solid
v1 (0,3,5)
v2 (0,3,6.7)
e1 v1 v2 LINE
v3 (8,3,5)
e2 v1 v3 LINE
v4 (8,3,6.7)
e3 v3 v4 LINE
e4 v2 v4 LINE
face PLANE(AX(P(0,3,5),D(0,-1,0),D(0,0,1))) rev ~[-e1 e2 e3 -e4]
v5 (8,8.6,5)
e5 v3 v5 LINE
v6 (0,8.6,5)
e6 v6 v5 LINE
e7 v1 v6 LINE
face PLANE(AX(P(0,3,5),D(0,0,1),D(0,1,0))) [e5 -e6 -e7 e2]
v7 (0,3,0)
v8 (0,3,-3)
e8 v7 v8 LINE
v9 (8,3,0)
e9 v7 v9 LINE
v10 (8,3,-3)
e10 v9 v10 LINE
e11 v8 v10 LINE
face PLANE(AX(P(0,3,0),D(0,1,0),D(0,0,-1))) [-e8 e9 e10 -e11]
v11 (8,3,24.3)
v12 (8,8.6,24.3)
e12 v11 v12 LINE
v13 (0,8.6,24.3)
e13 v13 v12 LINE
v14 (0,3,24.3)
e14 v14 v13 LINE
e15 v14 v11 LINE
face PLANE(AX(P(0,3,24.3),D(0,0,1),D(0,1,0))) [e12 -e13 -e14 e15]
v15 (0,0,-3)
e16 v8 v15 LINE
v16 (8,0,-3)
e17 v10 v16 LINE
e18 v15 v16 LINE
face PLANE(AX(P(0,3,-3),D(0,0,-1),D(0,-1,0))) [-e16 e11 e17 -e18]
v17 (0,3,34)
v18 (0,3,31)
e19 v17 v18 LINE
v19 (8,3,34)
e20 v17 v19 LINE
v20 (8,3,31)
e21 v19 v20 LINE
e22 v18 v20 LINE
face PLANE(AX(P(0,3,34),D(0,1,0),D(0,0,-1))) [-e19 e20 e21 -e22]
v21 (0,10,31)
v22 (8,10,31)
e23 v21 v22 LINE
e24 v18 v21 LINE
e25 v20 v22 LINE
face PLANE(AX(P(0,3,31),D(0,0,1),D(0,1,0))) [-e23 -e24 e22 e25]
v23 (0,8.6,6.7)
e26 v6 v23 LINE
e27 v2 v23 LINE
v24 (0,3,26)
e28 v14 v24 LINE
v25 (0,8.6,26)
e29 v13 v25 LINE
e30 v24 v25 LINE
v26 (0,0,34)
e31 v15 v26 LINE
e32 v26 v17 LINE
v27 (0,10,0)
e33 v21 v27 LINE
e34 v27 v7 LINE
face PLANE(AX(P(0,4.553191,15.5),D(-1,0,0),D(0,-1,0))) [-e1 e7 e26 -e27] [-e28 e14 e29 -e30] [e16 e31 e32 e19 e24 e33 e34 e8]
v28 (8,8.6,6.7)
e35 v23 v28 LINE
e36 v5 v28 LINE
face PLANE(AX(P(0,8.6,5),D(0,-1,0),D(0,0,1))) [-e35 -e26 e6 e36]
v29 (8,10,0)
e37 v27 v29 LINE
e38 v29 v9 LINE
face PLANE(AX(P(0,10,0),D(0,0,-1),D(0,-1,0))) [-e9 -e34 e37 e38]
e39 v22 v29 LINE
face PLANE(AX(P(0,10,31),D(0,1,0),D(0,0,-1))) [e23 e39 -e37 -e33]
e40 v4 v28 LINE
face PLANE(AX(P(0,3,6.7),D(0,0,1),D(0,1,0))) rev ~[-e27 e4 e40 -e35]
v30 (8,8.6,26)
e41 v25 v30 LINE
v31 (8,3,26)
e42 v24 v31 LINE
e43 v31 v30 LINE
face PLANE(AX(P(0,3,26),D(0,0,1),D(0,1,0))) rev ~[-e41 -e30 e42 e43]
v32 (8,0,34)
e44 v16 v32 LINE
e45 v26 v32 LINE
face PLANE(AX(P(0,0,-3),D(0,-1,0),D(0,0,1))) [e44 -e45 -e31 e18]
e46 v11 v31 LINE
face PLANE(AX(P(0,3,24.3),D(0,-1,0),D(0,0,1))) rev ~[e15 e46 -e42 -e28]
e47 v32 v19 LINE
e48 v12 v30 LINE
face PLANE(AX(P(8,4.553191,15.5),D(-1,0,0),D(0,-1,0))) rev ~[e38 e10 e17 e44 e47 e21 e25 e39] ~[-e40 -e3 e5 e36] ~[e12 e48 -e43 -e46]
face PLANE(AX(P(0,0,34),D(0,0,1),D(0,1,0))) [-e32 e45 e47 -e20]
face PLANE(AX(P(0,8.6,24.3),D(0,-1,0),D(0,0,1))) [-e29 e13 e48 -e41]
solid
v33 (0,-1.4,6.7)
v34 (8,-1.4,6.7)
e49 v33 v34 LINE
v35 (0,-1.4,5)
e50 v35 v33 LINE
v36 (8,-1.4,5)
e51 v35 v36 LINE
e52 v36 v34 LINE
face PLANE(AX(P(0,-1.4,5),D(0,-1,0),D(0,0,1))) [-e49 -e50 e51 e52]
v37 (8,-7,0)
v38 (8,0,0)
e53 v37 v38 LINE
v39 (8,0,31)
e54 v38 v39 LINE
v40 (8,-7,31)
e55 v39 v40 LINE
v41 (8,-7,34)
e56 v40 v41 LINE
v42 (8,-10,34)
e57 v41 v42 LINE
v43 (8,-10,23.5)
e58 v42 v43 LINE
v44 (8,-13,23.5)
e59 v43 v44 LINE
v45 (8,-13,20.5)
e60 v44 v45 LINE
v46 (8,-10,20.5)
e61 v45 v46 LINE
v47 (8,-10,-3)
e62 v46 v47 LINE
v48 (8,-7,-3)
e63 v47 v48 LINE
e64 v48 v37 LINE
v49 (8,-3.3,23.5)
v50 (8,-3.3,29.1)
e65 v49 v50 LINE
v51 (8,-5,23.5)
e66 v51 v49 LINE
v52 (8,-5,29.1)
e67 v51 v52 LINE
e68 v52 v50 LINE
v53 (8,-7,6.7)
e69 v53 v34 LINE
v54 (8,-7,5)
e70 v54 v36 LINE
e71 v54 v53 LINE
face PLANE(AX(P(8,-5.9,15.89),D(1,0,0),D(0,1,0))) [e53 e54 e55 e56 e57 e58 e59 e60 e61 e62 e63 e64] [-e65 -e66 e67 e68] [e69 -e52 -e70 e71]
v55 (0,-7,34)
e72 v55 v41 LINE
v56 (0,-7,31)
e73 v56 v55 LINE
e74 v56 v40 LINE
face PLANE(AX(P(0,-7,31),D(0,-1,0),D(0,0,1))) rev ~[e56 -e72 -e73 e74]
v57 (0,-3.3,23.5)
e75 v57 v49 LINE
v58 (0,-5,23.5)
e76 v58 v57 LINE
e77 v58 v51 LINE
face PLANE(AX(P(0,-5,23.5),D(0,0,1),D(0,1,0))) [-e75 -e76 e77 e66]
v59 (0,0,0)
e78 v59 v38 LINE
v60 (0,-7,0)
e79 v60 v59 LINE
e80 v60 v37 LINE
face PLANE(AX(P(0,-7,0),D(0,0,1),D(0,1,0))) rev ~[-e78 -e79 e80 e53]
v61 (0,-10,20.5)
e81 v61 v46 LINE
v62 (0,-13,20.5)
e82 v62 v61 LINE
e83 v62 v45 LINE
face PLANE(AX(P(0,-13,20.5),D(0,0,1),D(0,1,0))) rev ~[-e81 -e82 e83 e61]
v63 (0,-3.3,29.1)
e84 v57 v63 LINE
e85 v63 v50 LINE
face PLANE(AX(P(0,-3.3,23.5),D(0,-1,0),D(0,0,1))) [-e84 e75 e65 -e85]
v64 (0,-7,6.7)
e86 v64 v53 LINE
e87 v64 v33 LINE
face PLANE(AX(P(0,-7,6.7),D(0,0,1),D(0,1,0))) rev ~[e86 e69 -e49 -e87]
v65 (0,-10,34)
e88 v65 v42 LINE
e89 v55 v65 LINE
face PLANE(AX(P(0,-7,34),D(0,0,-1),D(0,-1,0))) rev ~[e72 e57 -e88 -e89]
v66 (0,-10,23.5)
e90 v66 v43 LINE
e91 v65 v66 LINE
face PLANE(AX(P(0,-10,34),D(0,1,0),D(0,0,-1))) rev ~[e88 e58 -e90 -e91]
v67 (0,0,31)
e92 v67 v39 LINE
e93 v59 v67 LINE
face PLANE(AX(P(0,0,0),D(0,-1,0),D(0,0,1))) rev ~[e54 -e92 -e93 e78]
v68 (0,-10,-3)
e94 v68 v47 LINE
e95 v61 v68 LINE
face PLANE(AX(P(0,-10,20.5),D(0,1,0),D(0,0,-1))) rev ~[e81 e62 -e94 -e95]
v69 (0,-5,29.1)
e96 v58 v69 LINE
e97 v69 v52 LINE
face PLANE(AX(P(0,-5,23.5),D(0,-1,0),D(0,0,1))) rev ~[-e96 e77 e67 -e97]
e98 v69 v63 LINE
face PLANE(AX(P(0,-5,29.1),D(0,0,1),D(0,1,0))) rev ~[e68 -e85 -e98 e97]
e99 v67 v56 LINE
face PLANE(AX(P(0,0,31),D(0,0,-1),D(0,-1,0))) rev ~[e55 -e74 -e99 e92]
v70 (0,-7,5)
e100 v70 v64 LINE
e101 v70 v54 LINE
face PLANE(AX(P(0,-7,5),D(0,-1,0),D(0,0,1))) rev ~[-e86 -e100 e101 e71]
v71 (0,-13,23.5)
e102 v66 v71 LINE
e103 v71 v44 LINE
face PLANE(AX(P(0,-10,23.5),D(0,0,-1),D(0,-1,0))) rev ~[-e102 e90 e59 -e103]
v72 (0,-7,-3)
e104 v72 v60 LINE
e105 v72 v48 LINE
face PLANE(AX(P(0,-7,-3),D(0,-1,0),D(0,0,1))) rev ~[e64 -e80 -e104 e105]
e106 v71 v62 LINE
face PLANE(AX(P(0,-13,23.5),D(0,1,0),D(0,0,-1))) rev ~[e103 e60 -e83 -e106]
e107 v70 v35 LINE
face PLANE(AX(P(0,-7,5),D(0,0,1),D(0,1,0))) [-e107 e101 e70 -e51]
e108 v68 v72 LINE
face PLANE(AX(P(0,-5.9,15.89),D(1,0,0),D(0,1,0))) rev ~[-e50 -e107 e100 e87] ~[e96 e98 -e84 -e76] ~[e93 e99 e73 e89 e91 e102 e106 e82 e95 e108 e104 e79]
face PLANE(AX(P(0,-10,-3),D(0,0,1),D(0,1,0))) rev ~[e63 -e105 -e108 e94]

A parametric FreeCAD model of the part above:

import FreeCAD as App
import Part
import Sketcher

V = App.Vector


def add_polygon(sketch, points):
    """Adds a closed chain of lines whose ends are joined by coincident constraints."""
    first, n = sketch.GeometryCount, len(points)
    for a, b in zip(points, points[1:] + points[:1]):
        sketch.addGeometry(Part.LineSegment(App.Vector(*a, 0), App.Vector(*b, 0)), False)
    for i in range(n):
        sketch.addConstraint(Sketcher.Constraint("Coincident", first + i, 2, first + (i + 1) % n, 1))

doc = App.newDocument("Part")
body = doc.addObject("PartDesign::Body", "Body")

sketch1 = body.newObject("Sketcher::SketchObject", "Sketch")
sketch1.AttachmentSupport = (doc.getObject("YZ_Plane"), [""])
sketch1.MapMode = "FlatFace"
add_polygon(sketch1, [(-10, 34), (-10, 23.5), (-13, 23.5), (-13, 20.5), (-10, 20.5), (-10, -3), (-7, -3), (-7, 0), (0, 0), (0, 31), (-7, 31), (-7, 34)])
add_polygon(sketch1, [(-1.4, 5), (-7, 5), (-7, 6.7), (-1.4, 6.7)])
add_polygon(sketch1, [(-3.3, 23.5), (-5, 23.5), (-5, 29.1), (-3.3, 29.1)])
sketch1.addConstraint(Sketcher.Constraint("Vertical", 0))
sketch1.addConstraint(Sketcher.Constraint("Horizontal", 1))
sketch1.addConstraint(Sketcher.Constraint("Vertical", 2))
sketch1.addConstraint(Sketcher.Constraint("Horizontal", 3))
sketch1.addConstraint(Sketcher.Constraint("Vertical", 4))
sketch1.addConstraint(Sketcher.Constraint("Horizontal", 5))
sketch1.addConstraint(Sketcher.Constraint("Vertical", 6))
sketch1.addConstraint(Sketcher.Constraint("Horizontal", 7))
sketch1.addConstraint(Sketcher.Constraint("Vertical", 8))
sketch1.addConstraint(Sketcher.Constraint("Horizontal", 9))
sketch1.addConstraint(Sketcher.Constraint("Vertical", 10))
sketch1.addConstraint(Sketcher.Constraint("Horizontal", 11))
sketch1.addConstraint(Sketcher.Constraint("Horizontal", 12))
sketch1.addConstraint(Sketcher.Constraint("Vertical", 13))
sketch1.addConstraint(Sketcher.Constraint("Horizontal", 14))
sketch1.addConstraint(Sketcher.Constraint("Vertical", 15))
sketch1.addConstraint(Sketcher.Constraint("Horizontal", 16))
sketch1.addConstraint(Sketcher.Constraint("Vertical", 17))
sketch1.addConstraint(Sketcher.Constraint("Horizontal", 18))
sketch1.addConstraint(Sketcher.Constraint("Vertical", 19))
sketch1.addConstraint(Sketcher.Constraint("Coincident", 7, 2, -1, 1))
sketch1.addConstraint(Sketcher.Constraint("Horizontal", 1, 2, 16, 2))
sketch1.addConstraint(Sketcher.Constraint("Vertical", 0, 2, 3, 2))
sketch1.addConstraint(Sketcher.Constraint("Vertical", 6, 2, 9, 2))
sketch1.addConstraint(Sketcher.Constraint("Vertical", 10, 2, 12, 2))
sketch1.addConstraint(Sketcher.Constraint("Equal", 3, 5))
sketch1.addConstraint(Sketcher.Constraint("Equal", 11, 2))
sketch1.addConstraint(Sketcher.Constraint("Equal", 2, 6))
sketch1.addConstraint(Sketcher.Constraint("Equal", 6, 10))
sketch1.addConstraint(Sketcher.Constraint("Equal", 18, 13))
sketch1.addConstraint(Sketcher.Constraint("Equal", 14, 17))
sketch1.addConstraint(Sketcher.Constraint("DistanceX", 1, 2, 1, 1, 3.0))
sketch1.addConstraint(Sketcher.Constraint("DistanceX", 7, 1, 7, 2, 7.0))
sketch1.addConstraint(Sketcher.Constraint("DistanceY", 8, 1, 8, 2, 31.0))
sketch1.addConstraint(Sketcher.Constraint("DistanceX", 12, 2, 12, 1, 5.6))
sketch1.addConstraint(Sketcher.Constraint("DistanceX", 16, 2, 16, 1, 1.7))
sketch1.addConstraint(Sketcher.Constraint("DistanceY", 0, 2, 0, 1, 10.5))
sketch1.addConstraint(Sketcher.Constraint("DistanceY", -1, 1, 12, 2, 5.0))
sketch1.addConstraint(Sketcher.Constraint("DistanceX", 16, 2, -1, 1, 5.0))
pad1 = body.newObject("PartDesign::Pad", "Pad")
pad1.Profile = sketch1
pad1.Length = 8
body2 = doc.addObject("PartDesign::Body", "Body001")

sketch2 = body2.newObject("Sketcher::SketchObject", "Sketch001")
sketch2.AttachmentSupport = (doc.getObject("YZ_Plane001"), [""])
sketch2.MapMode = "FlatFace"
add_polygon(sketch2, [(3, 34), (0, 34), (0, -3), (3, -3), (3, 0), (10, 0), (10, 31), (3, 31)])
add_polygon(sketch2, [(3, 5), (3, 6.7), (8.6, 6.7), (8.6, 5)])
add_polygon(sketch2, [(3, 24.3), (3, 26), (8.6, 26), (8.6, 24.3)])
sketch2.addConstraint(Sketcher.Constraint("Horizontal", 0))
sketch2.addConstraint(Sketcher.Constraint("Vertical", 1))
sketch2.addConstraint(Sketcher.Constraint("Horizontal", 2))
sketch2.addConstraint(Sketcher.Constraint("Vertical", 3))
sketch2.addConstraint(Sketcher.Constraint("Horizontal", 4))
sketch2.addConstraint(Sketcher.Constraint("Vertical", 5))
sketch2.addConstraint(Sketcher.Constraint("Horizontal", 6))
sketch2.addConstraint(Sketcher.Constraint("Vertical", 7))
sketch2.addConstraint(Sketcher.Constraint("Vertical", 8))
sketch2.addConstraint(Sketcher.Constraint("Horizontal", 9))
sketch2.addConstraint(Sketcher.Constraint("Vertical", 10))
sketch2.addConstraint(Sketcher.Constraint("Horizontal", 11))
sketch2.addConstraint(Sketcher.Constraint("Vertical", 12))
sketch2.addConstraint(Sketcher.Constraint("Horizontal", 13))
sketch2.addConstraint(Sketcher.Constraint("Vertical", 14))
sketch2.addConstraint(Sketcher.Constraint("Horizontal", 15))
sketch2.addConstraint(Sketcher.Constraint("PointOnObject", 0, 2, -2))
sketch2.addConstraint(Sketcher.Constraint("PointOnObject", 3, 2, -1))
sketch2.addConstraint(Sketcher.Constraint("Vertical", 3, 2, 6, 2))
sketch2.addConstraint(Sketcher.Constraint("Vertical", 7, 2, 8, 2))
sketch2.addConstraint(Sketcher.Constraint("Vertical", 11, 2, 12, 2))
sketch2.addConstraint(Sketcher.Constraint("Vertical", 10, 2, 13, 2))
sketch2.addConstraint(Sketcher.Constraint("Equal", 2, 3))
sketch2.addConstraint(Sketcher.Constraint("Equal", 3, 7))
sketch2.addConstraint(Sketcher.Constraint("Equal", 10, 12))
sketch2.addConstraint(Sketcher.Constraint("DistanceX", 0, 2, 0, 1, 3.0))
sketch2.addConstraint(Sketcher.Constraint("DistanceX", 4, 1, 4, 2, 7.0))
sketch2.addConstraint(Sketcher.Constraint("DistanceY", 1, 2, 1, 1, 37.0))
sketch2.addConstraint(Sketcher.Constraint("DistanceX", 9, 1, 9, 2, 5.6))
sketch2.addConstraint(Sketcher.Constraint("DistanceY", 8, 1, 8, 2, 1.7))
sketch2.addConstraint(Sketcher.Constraint("DistanceY", -1, 1, 10, 2, 5.0))
sketch2.addConstraint(Sketcher.Constraint("DistanceY", -1, 1, 12, 2, 26.0))
pad2 = body2.newObject("PartDesign::Pad", "Pad001")
pad2.Profile = sketch2
pad2.Length = 8

doc.recompute()
